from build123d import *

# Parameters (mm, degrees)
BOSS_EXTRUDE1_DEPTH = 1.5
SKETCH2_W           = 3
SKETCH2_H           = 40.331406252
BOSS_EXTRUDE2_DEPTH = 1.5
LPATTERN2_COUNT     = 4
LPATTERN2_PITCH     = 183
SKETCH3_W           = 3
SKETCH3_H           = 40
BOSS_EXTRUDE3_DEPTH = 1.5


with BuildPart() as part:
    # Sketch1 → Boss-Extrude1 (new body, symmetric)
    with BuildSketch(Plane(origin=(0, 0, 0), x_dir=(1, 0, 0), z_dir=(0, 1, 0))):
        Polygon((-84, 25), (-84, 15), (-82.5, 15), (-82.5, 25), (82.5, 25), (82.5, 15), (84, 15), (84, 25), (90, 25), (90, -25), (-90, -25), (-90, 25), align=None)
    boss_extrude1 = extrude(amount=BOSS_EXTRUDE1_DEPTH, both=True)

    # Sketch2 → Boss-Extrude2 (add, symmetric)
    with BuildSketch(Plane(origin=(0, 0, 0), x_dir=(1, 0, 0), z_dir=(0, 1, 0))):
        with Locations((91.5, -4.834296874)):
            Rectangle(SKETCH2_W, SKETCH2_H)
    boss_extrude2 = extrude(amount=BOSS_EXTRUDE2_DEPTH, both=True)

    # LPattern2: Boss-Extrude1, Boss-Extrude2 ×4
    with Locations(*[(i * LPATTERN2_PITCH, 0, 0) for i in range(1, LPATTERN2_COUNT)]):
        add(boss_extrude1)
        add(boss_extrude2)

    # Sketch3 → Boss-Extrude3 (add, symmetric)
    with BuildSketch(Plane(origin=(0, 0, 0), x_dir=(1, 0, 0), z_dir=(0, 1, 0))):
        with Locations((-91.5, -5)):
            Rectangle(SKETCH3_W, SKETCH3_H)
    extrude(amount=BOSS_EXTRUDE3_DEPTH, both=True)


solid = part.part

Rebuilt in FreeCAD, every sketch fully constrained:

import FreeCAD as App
import Part
import Sketcher

doc = App.newDocument("Part")
body = doc.addObject("PartDesign::Body", "Body")

sketch1 = doc.addObject("Sketcher::SketchObject", "Sketch")
body.addObject(sketch1)
sketch1.AttachmentSupport = (doc.XZ_Plane, [""])
sketch1.MapMode = "FlatFace"
sketch1.addGeometry([
    Part.LineSegment(App.Vector(-84, -15, 0), App.Vector(-84, -25, 0)),
    Part.LineSegment(App.Vector(-84, -25, 0), App.Vector(-90, -25, 0)),
    Part.LineSegment(App.Vector(-90, -25, 0), App.Vector(-90, 25, 0)),
    Part.LineSegment(App.Vector(-90, 25, 0), App.Vector(90, 25, 0)),
    Part.LineSegment(App.Vector(90, 25, 0), App.Vector(90, -25, 0)),
    Part.LineSegment(App.Vector(90, -25, 0), App.Vector(84, -25, 0)),
    Part.LineSegment(App.Vector(84, -25, 0), App.Vector(84, -15, 0)),
    Part.LineSegment(App.Vector(84, -15, 0), App.Vector(82.5, -15, 0)),
    Part.LineSegment(App.Vector(82.5, -15, 0), App.Vector(82.5, -25, 0)),
    Part.LineSegment(App.Vector(82.5, -25, 0), App.Vector(-82.5, -25, 0)),
    Part.LineSegment(App.Vector(-82.5, -25, 0), App.Vector(-82.5, -15, 0)),
    Part.LineSegment(App.Vector(-82.5, -15, 0), App.Vector(-84, -15, 0)),
], False)
sketch1.addConstraint([
    Sketcher.Constraint("Coincident", 0, 2, 1, 1),
    Sketcher.Constraint("Coincident", 1, 2, 2, 1),
    Sketcher.Constraint("Coincident", 2, 2, 3, 1),
    Sketcher.Constraint("Coincident", 3, 2, 4, 1),
    Sketcher.Constraint("Coincident", 4, 2, 5, 1),
    Sketcher.Constraint("Coincident", 5, 2, 6, 1),
    Sketcher.Constraint("Coincident", 6, 2, 7, 1),
    Sketcher.Constraint("Coincident", 7, 2, 8, 1),
    Sketcher.Constraint("Coincident", 8, 2, 9, 1),
    Sketcher.Constraint("Coincident", 9, 2, 10, 1),
    Sketcher.Constraint("Coincident", 10, 2, 11, 1),
    Sketcher.Constraint("Coincident", 11, 2, 0, 1),
    Sketcher.Constraint("Vertical", 0),
    Sketcher.Constraint("Horizontal", 1),
    Sketcher.Constraint("Vertical", 2),
    Sketcher.Constraint("Horizontal", 3),
    Sketcher.Constraint("Vertical", 4),
    Sketcher.Constraint("Horizontal", 5),
    Sketcher.Constraint("Vertical", 6),
    Sketcher.Constraint("Horizontal", 7),
    Sketcher.Constraint("Vertical", 8),
    Sketcher.Constraint("Horizontal", 9),
    Sketcher.Constraint("Vertical", 10),
    Sketcher.Constraint("Horizontal", 11),
    Sketcher.Constraint("Symmetric", 1, 2, 3, 2, -1, 1),
    Sketcher.Constraint("Symmetric", 0, 2, 5, 2, -2),
    Sketcher.Constraint("Symmetric", 7, 2, 10, 2, -2),
    Sketcher.Constraint("Horizontal", 5, 2, 8, 2),
    Sketcher.Constraint("DistanceX", 1, 2, 1, 1, 6.0),
    Sketcher.Constraint("DistanceX", 3, 1, 3, 2, 180.0),
    Sketcher.Constraint("DistanceX", 9, 2, 9, 1, 165.0),
    Sketcher.Constraint("DistanceY", 0, 2, 0, 1, 10.0),
    Sketcher.Constraint("DistanceY", 2, 1, 2, 2, 50.0),
])
pad1 = doc.addObject("PartDesign::Pad", "Pad")
body.addObject(pad1)
pad1.Profile = sketch1
pad1.Length = 3
pad1.Midplane = True

sketch2 = doc.addObject("Sketcher::SketchObject", "Sketch001")
body.addObject(sketch2)
sketch2.AttachmentSupport = (doc.XZ_Plane, [""])
sketch2.MapMode = "FlatFace"
sketch2.addGeometry([
    Part.LineSegment(App.Vector(90, -15.3, 0), App.Vector(90, 25, 0)),
    Part.LineSegment(App.Vector(90, 25, 0), App.Vector(93, 25, 0)),
    Part.LineSegment(App.Vector(93, 25, 0), App.Vector(93, -15.3, 0)),
    Part.LineSegment(App.Vector(93, -15.3, 0), App.Vector(90, -15.3, 0)),
], False)
sketch2.addConstraint([
    Sketcher.Constraint("Coincident", 0, 2, 1, 1),
    Sketcher.Constraint("Coincident", 1, 2, 2, 1),
    Sketcher.Constraint("Coincident", 2, 2, 3, 1),
    Sketcher.Constraint("Coincident", 3, 2, 0, 1),
    Sketcher.Constraint("Vertical", 0),
    Sketcher.Constraint("Horizontal", 1),
    Sketcher.Constraint("Vertical", 2),
    Sketcher.Constraint("Horizontal", 3),
    Sketcher.Constraint("DistanceX", 1, 1, 1, 2, 3.0),
    Sketcher.Constraint("DistanceX", -1, 1, 0, 2, 90.0),
    Sketcher.Constraint("DistanceY", -1, 1, 0, 2, 25.0),
    Sketcher.Constraint("DistanceY", 0, 1, 0, 2, 40.331406),
])
pad2 = doc.addObject("PartDesign::Pad", "Pad001")
body.addObject(pad2)
pad2.Profile = sketch2
pad2.Length = 3
pad2.Midplane = True
doc.recompute()

linearpattern = doc.addObject("PartDesign::LinearPattern", "LinearPattern")
body.addObject(linearpattern)
linearpattern.Originals = [pad1, pad2]
linearpattern.Direction = (doc.X_Axis, [""])
linearpattern.Mode = "offset"
linearpattern.Offset = 183
linearpattern.Occurrences = 4
body.Tip = linearpattern

sketch3 = doc.addObject("Sketcher::SketchObject", "Sketch002")
body.addObject(sketch3)
sketch3.AttachmentSupport = (doc.XZ_Plane, [""])
sketch3.MapMode = "FlatFace"
sketch3.addGeometry([
    Part.LineSegment(App.Vector(-93, -15, 0), App.Vector(-93, 25, 0)),
    Part.LineSegment(App.Vector(-93, 25, 0), App.Vector(-90, 25, 0)),
    Part.LineSegment(App.Vector(-90, 25, 0), App.Vector(-90, -15, 0)),
    Part.LineSegment(App.Vector(-90, -15, 0), App.Vector(-93, -15, 0)),
], False)
sketch3.addConstraint([
    Sketcher.Constraint("Coincident", 0, 2, 1, 1),
    Sketcher.Constraint("Coincident", 1, 2, 2, 1),
    Sketcher.Constraint("Coincident", 2, 2, 3, 1),
    Sketcher.Constraint("Coincident", 3, 2, 0, 1),
    Sketcher.Constraint("Vertical", 0),
    Sketcher.Constraint("Horizontal", 1),
    Sketcher.Constraint("Vertical", 2),
    Sketcher.Constraint("Horizontal", 3),
    Sketcher.Constraint("DistanceX", 1, 1, 1, 2, 3.0),
    Sketcher.Constraint("DistanceY", 0, 1, 0, 2, 40.0),
    Sketcher.Constraint("DistanceX", 0, 2, -1, 1, 93.0),
    Sketcher.Constraint("DistanceY", -1, 1, 0, 2, 25.0),
])
pad3 = doc.addObject("PartDesign::Pad", "Pad002")
body.addObject(pad3)
pad3.Profile = sketch3
pad3.Length = 3
pad3.Midplane = True

doc.recompute()
